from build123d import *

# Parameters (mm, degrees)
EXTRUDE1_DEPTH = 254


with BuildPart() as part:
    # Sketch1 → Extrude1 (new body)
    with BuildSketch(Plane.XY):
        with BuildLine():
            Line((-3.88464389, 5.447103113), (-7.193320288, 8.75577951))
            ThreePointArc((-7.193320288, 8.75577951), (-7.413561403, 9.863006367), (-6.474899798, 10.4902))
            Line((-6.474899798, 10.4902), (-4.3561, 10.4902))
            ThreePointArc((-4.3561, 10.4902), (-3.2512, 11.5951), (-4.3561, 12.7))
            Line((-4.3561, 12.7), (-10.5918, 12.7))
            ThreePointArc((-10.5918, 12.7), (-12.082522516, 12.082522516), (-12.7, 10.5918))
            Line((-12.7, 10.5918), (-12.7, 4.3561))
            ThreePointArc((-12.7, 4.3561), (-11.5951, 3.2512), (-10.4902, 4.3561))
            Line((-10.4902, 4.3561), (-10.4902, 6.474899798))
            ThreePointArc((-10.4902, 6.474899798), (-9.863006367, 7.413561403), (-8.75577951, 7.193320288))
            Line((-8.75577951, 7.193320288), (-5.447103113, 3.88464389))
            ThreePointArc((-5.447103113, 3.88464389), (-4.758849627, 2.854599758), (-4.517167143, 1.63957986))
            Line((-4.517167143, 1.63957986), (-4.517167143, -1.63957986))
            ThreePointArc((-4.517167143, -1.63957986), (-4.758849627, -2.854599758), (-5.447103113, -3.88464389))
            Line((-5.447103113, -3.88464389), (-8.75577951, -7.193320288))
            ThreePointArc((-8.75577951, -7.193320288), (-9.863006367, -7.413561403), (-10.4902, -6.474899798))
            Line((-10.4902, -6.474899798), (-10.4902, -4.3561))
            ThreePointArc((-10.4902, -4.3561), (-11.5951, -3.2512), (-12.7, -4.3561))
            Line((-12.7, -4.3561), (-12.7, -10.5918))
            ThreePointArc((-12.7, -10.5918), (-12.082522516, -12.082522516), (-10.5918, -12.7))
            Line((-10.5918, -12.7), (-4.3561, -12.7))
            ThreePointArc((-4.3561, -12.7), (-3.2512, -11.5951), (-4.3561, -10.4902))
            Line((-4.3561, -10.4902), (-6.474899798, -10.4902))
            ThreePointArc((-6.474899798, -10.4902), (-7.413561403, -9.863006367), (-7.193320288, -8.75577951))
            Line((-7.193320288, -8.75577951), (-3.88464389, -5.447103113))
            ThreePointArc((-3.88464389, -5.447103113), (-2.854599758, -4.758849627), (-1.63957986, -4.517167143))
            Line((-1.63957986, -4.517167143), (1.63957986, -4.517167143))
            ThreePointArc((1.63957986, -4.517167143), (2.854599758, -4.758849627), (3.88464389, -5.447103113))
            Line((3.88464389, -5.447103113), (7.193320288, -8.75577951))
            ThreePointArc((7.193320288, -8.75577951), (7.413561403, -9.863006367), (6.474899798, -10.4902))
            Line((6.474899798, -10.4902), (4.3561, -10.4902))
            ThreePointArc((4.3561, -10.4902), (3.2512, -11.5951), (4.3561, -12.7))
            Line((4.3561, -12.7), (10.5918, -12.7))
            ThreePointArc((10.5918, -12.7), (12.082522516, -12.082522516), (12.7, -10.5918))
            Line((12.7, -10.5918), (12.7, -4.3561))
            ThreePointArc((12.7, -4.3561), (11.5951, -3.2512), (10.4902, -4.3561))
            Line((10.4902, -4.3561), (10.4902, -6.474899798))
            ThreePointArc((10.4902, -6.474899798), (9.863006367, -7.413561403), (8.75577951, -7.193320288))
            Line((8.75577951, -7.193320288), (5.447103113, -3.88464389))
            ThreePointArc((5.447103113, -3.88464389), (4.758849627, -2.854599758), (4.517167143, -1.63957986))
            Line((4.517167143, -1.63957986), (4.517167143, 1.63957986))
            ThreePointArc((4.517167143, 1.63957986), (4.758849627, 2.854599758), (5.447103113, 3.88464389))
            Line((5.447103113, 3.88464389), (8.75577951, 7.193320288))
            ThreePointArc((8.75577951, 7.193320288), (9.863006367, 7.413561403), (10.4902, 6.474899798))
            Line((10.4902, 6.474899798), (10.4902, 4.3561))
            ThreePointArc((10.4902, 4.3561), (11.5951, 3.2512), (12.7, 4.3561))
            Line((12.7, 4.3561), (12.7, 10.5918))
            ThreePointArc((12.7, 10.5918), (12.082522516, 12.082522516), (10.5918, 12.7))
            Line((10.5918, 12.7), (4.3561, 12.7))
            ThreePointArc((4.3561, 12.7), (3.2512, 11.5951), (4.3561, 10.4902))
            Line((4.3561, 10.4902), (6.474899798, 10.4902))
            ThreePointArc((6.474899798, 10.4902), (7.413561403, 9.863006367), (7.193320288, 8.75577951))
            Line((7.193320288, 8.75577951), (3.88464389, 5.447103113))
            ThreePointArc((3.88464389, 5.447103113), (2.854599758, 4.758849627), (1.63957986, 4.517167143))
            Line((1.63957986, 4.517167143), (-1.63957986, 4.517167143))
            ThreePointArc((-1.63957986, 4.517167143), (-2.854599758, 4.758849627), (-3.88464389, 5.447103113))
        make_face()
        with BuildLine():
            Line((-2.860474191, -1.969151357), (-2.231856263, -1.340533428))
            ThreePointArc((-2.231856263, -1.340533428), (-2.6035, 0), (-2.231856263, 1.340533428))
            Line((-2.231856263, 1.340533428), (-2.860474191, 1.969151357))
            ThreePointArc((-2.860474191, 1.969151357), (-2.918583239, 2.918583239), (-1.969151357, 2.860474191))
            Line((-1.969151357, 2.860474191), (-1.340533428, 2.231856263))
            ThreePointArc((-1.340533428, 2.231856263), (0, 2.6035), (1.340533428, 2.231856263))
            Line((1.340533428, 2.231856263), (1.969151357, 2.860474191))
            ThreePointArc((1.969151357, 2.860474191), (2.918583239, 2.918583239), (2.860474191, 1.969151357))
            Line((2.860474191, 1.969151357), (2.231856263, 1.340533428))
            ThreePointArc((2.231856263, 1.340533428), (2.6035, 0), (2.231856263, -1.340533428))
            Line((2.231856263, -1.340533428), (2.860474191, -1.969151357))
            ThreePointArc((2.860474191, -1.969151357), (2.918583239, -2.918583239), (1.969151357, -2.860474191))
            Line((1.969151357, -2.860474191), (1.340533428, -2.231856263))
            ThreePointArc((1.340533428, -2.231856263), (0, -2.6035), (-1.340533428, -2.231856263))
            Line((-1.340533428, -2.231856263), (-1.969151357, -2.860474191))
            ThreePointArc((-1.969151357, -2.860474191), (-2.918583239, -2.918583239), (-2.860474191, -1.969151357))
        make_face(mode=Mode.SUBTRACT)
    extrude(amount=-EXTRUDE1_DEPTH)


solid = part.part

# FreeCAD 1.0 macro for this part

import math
import FreeCAD as App
import Part
import Sketcher
from FreeCAD import Vector
Q = App.Units.Quantity

doc = App.newDocument("Part")
body = doc.addObject("PartDesign::Body", "Body")

sketch1 = doc.addObject("Sketcher::SketchObject", "Sketch")
body.addObject(sketch1)
sketch1.AttachmentSupport = (doc.XY_Plane, [""])
sketch1.MapMode = "FlatFace"
sketch1.addGeometry([
    Part.LineSegment(Vector(-3.9, 5.4, 0), Vector(-7.2, 8.8, 0)),
    Part.ArcOfCircle(Part.Circle(Vector(-6.5, 9.5, 0), Vector(0, 0, 1), 1), math.radians(90), math.radians(225)),
    Part.LineSegment(Vector(-6.5, 10.5, 0), Vector(-4.4, 10.5, 0)),
    Part.ArcOfCircle(Part.Circle(Vector(-4.4, 11.6, 0), Vector(0, 0, 1), 1.1), math.radians(-90), math.radians(90)),
    Part.LineSegment(Vector(-4.4, 12.7, 0), Vector(-10.6, 12.7, 0)),
    Part.ArcOfCircle(Part.Circle(Vector(-10.6, 10.6, 0), Vector(0, 0, 1), 2.1), math.radians(90), math.radians(180)),
    Part.LineSegment(Vector(-12.7, 10.6, 0), Vector(-12.7, 4.4, 0)),
    Part.ArcOfCircle(Part.Circle(Vector(-11.6, 4.4, 0), Vector(0, 0, 1), 1.1), math.radians(180), math.radians(360)),
    Part.LineSegment(Vector(-10.5, 4.4, 0), Vector(-10.5, 6.5, 0)),
    Part.ArcOfCircle(Part.Circle(Vector(-9.5, 6.5, 0), Vector(0, 0, 1), 1), math.radians(45), math.radians(180)),
    Part.LineSegment(Vector(-8.8, 7.2, 0), Vector(-5.4, 3.9, 0)),
    Part.ArcOfCircle(Part.Circle(Vector(-7.7, 1.6, 0), Vector(0, 0, 1), 3.2), math.radians(0), math.radians(45)),
    Part.LineSegment(Vector(-4.5, 1.6, 0), Vector(-4.5, -1.6, 0)),
    Part.ArcOfCircle(Part.Circle(Vector(-7.7, -1.6, 0), Vector(0, 0, 1), 3.2), math.radians(-45), math.radians(0)),
    Part.LineSegment(Vector(-5.4, -3.9, 0), Vector(-8.8, -7.2, 0)),
    Part.ArcOfCircle(Part.Circle(Vector(-9.5, -6.5, 0), Vector(0, 0, 1), 1), math.radians(180), math.radians(315)),
    Part.LineSegment(Vector(-10.5, -6.5, 0), Vector(-10.5, -4.4, 0)),
    Part.ArcOfCircle(Part.Circle(Vector(-11.6, -4.4, 0), Vector(0, 0, 1), 1.1), math.radians(0), math.radians(180)),
    Part.LineSegment(Vector(-12.7, -4.4, 0), Vector(-12.7, -10.6, 0)),
    Part.ArcOfCircle(Part.Circle(Vector(-10.6, -10.6, 0), Vector(0, 0, 1), 2.1), math.radians(180), math.radians(270)),
    Part.LineSegment(Vector(-10.6, -12.7, 0), Vector(-4.4, -12.7, 0)),
    Part.ArcOfCircle(Part.Circle(Vector(-4.4, -11.6, 0), Vector(0, 0, 1), 1.1), math.radians(-90), math.radians(90)),
    Part.LineSegment(Vector(-4.4, -10.5, 0), Vector(-6.5, -10.5, 0)),
    Part.ArcOfCircle(Part.Circle(Vector(-6.5, -9.5, 0), Vector(0, 0, 1), 1), math.radians(135), math.radians(270)),
    Part.LineSegment(Vector(-7.2, -8.8, 0), Vector(-3.9, -5.4, 0)),
    Part.ArcOfCircle(Part.Circle(Vector(-1.6, -7.7, 0), Vector(0, 0, 1), 3.2), math.radians(90), math.radians(135)),
    Part.LineSegment(Vector(-1.6, -4.5, 0), Vector(1.6, -4.5, 0)),
    Part.ArcOfCircle(Part.Circle(Vector(1.6, -7.7, 0), Vector(0, 0, 1), 3.2), math.radians(45), math.radians(90)),
    Part.LineSegment(Vector(3.9, -5.4, 0), Vector(7.2, -8.8, 0)),
    Part.ArcOfCircle(Part.Circle(Vector(6.5, -9.5, 0), Vector(0, 0, 1), 1), math.radians(-90), math.radians(45)),
    Part.LineSegment(Vector(6.5, -10.5, 0), Vector(4.4, -10.5, 0)),
    Part.ArcOfCircle(Part.Circle(Vector(4.4, -11.6, 0), Vector(0, 0, 1), 1.1), math.radians(90), math.radians(270)),
    Part.LineSegment(Vector(4.4, -12.7, 0), Vector(10.6, -12.7, 0)),
    Part.ArcOfCircle(Part.Circle(Vector(10.6, -10.6, 0), Vector(0, 0, 1), 2.1), math.radians(-90), math.radians(0)),
    Part.LineSegment(Vector(12.7, -10.6, 0), Vector(12.7, -4.4, 0)),
    Part.ArcOfCircle(Part.Circle(Vector(11.6, -4.4, 0), Vector(0, 0, 1), 1.1), math.radians(0), math.radians(180)),
    Part.LineSegment(Vector(10.5, -4.4, 0), Vector(10.5, -6.5, 0)),
    Part.ArcOfCircle(Part.Circle(Vector(9.5, -6.5, 0), Vector(0, 0, 1), 1), math.radians(-135), math.radians(0)),
    Part.LineSegment(Vector(8.8, -7.2, 0), Vector(5.4, -3.9, 0)),
    Part.ArcOfCircle(Part.Circle(Vector(7.7, -1.6, 0), Vector(0, 0, 1), 3.2), math.radians(180), math.radians(225)),
    Part.LineSegment(Vector(4.5, -1.6, 0), Vector(4.5, 1.6, 0)),
    Part.ArcOfCircle(Part.Circle(Vector(7.7, 1.6, 0), Vector(0, 0, 1), 3.2), math.radians(135), math.radians(180)),
    Part.LineSegment(Vector(5.4, 3.9, 0), Vector(8.8, 7.2, 0)),
    Part.ArcOfCircle(Part.Circle(Vector(9.5, 6.5, 0), Vector(0, 0, 1), 1), math.radians(0), math.radians(135)),
    Part.LineSegment(Vector(10.5, 6.5, 0), Vector(10.5, 4.4, 0)),
    Part.ArcOfCircle(Part.Circle(Vector(11.6, 4.4, 0), Vector(0, 0, 1), 1.1), math.radians(180), math.radians(360)),
    Part.LineSegment(Vector(12.7, 4.4, 0), Vector(12.7, 10.6, 0)),
    Part.ArcOfCircle(Part.Circle(Vector(10.6, 10.6, 0), Vector(0, 0, 1), 2.1), math.radians(0), math.radians(90)),
    Part.LineSegment(Vector(10.6, 12.7, 0), Vector(4.4, 12.7, 0)),
    Part.ArcOfCircle(Part.Circle(Vector(4.4, 11.6, 0), Vector(0, 0, 1), 1.1), math.radians(90), math.radians(270)),
    Part.LineSegment(Vector(4.4, 10.5, 0), Vector(6.5, 10.5, 0)),
    Part.ArcOfCircle(Part.Circle(Vector(6.5, 9.5, 0), Vector(0, 0, 1), 1), math.radians(-45), math.radians(90)),
    Part.LineSegment(Vector(7.2, 8.8, 0), Vector(3.9, 5.4, 0)),
    Part.ArcOfCircle(Part.Circle(Vector(1.6, 7.7, 0), Vector(0, 0, 1), 3.2), math.radians(-90), math.radians(-45)),
    Part.LineSegment(Vector(1.6, 4.5, 0), Vector(-1.6, 4.5, 0)),
    Part.ArcOfCircle(Part.Circle(Vector(-1.6, 7.7, 0), Vector(0, 0, 1), 3.2), math.radians(-135), math.radians(-90)),
    Part.ArcOfCircle(Part.Circle(Vector(-2.5, -2.5, 0), Vector(0, 0, 1), 0.6), math.radians(128), math.radians(322)),
    Part.LineSegment(Vector(-2.9, -2, 0), Vector(-2.2, -1.3, 0)),
    Part.ArcOfCircle(Part.Circle(Vector(0, 0, 0), Vector(0, 0, 1), 2.6), math.radians(149), math.radians(211)),
    Part.LineSegment(Vector(-2.2, 1.3, 0), Vector(-2.9, 2, 0)),
    Part.ArcOfCircle(Part.Circle(Vector(-2.5, 2.5, 0), Vector(0, 0, 1), 0.6), math.radians(38), math.radians(232)),
    Part.LineSegment(Vector(-2, 2.9, 0), Vector(-1.3, 2.2, 0)),
    Part.ArcOfCircle(Part.Circle(Vector(0, 0, 0), Vector(0, 0, 1), 2.6), math.radians(59), math.radians(121)),
    Part.LineSegment(Vector(1.3, 2.2, 0), Vector(2, 2.9, 0)),
    Part.ArcOfCircle(Part.Circle(Vector(2.5, 2.5, 0), Vector(0, 0, 1), 0.6), math.radians(-52), math.radians(142)),
    Part.LineSegment(Vector(2.9, 2, 0), Vector(2.2, 1.3, 0)),
    Part.ArcOfCircle(Part.Circle(Vector(0, 0, 0), Vector(0, 0, 1), 2.6), math.radians(-31), math.radians(31)),
    Part.LineSegment(Vector(2.2, -1.3, 0), Vector(2.9, -2, 0)),
    Part.ArcOfCircle(Part.Circle(Vector(2.5, -2.5, 0), Vector(0, 0, 1), 0.6), math.radians(-142), math.radians(52)),
    Part.LineSegment(Vector(2, -2.9, 0), Vector(1.3, -2.2, 0)),
    Part.ArcOfCircle(Part.Circle(Vector(0, 0, 0), Vector(0, 0, 1), 2.6), math.radians(-121), math.radians(-59)),
    Part.LineSegment(Vector(-1.3, -2.2, 0), Vector(-2, -2.9, 0)),
], False)
sketch1.addConstraint([
    Sketcher.Constraint("Tangent", 0, 2, 1, 2),
    Sketcher.Constraint("Tangent", 1, 1, 2, 1),
    Sketcher.Constraint("Tangent", 2, 2, 3, 1),
    Sketcher.Constraint("Tangent", 3, 2, 4, 1),
    Sketcher.Constraint("Tangent", 4, 2, 5, 1),
    Sketcher.Constraint("Tangent", 5, 2, 6, 1),
    Sketcher.Constraint("Tangent", 6, 2, 7, 1),
    Sketcher.Constraint("Tangent", 7, 2, 8, 1),
    Sketcher.Constraint("Tangent", 8, 2, 9, 2),
    Sketcher.Constraint("Tangent", 9, 1, 10, 1),
    Sketcher.Constraint("Tangent", 10, 2, 11, 2),
    Sketcher.Constraint("Tangent", 11, 1, 12, 1),
    Sketcher.Constraint("Tangent", 12, 2, 13, 2),
    Sketcher.Constraint("Tangent", 13, 1, 14, 1),
    Sketcher.Constraint("Tangent", 14, 2, 15, 2),
    Sketcher.Constraint("Tangent", 15, 1, 16, 1),
    Sketcher.Constraint("Tangent", 16, 2, 17, 1),
    Sketcher.Constraint("Tangent", 17, 2, 18, 1),
    Sketcher.Constraint("Tangent", 18, 2, 19, 1),
    Sketcher.Constraint("Tangent", 19, 2, 20, 1),
    Sketcher.Constraint("Tangent", 20, 2, 21, 1),
    Sketcher.Constraint("Tangent", 21, 2, 22, 1),
    Sketcher.Constraint("Tangent", 22, 2, 23, 2),
    Sketcher.Constraint("Tangent", 23, 1, 24, 1),
    Sketcher.Constraint("Tangent", 24, 2, 25, 2),
    Sketcher.Constraint("Tangent", 25, 1, 26, 1),
    Sketcher.Constraint("Tangent", 26, 2, 27, 2),
    Sketcher.Constraint("Tangent", 27, 1, 28, 1),
    Sketcher.Constraint("Tangent", 28, 2, 29, 2),
    Sketcher.Constraint("Tangent", 29, 1, 30, 1),
    Sketcher.Constraint("Tangent", 30, 2, 31, 1),
    Sketcher.Constraint("Tangent", 31, 2, 32, 1),
    Sketcher.Constraint("Tangent", 32, 2, 33, 1),
    Sketcher.Constraint("Tangent", 33, 2, 34, 1),
    Sketcher.Constraint("Tangent", 34, 2, 35, 1),
    Sketcher.Constraint("Tangent", 35, 2, 36, 1),
    Sketcher.Constraint("Tangent", 36, 2, 37, 2),
    Sketcher.Constraint("Tangent", 37, 1, 38, 1),
    Sketcher.Constraint("Tangent", 38, 2, 39, 2),
    Sketcher.Constraint("Tangent", 39, 1, 40, 1),
    Sketcher.Constraint("Tangent", 40, 2, 41, 2),
    Sketcher.Constraint("Tangent", 41, 1, 42, 1),
    Sketcher.Constraint("Tangent", 42, 2, 43, 2),
    Sketcher.Constraint("Tangent", 43, 1, 44, 1),
    Sketcher.Constraint("Tangent", 44, 2, 45, 1),
    Sketcher.Constraint("Tangent", 45, 2, 46, 1),
    Sketcher.Constraint("Tangent", 46, 2, 47, 1),
    Sketcher.Constraint("Tangent", 47, 2, 48, 1),
    Sketcher.Constraint("Tangent", 48, 2, 49, 1),
    Sketcher.Constraint("Tangent", 49, 2, 50, 1),
    Sketcher.Constraint("Tangent", 50, 2, 51, 2),
    Sketcher.Constraint("Tangent", 51, 1, 52, 1),
    Sketcher.Constraint("Tangent", 52, 2, 53, 2),
    Sketcher.Constraint("Tangent", 53, 1, 54, 1),
    Sketcher.Constraint("Tangent", 54, 2, 55, 2),
    Sketcher.Constraint("Tangent", 55, 1, 0, 1),
    Sketcher.Constraint("Coincident", 56, 1, 57, 1),
    Sketcher.Constraint("Coincident", 57, 2, 58, 2),
    Sketcher.Constraint("Coincident", 58, 1, 59, 1),
    Sketcher.Constraint("Coincident", 59, 2, 60, 2),
    Sketcher.Constraint("Coincident", 60, 1, 61, 1),
    Sketcher.Constraint("Coincident", 61, 2, 62, 2),
    Sketcher.Constraint("Coincident", 62, 1, 63, 1),
    Sketcher.Constraint("Coincident", 63, 2, 64, 2),
    Sketcher.Constraint("Coincident", 64, 1, 65, 1),
    Sketcher.Constraint("Coincident", 65, 2, 66, 2),
    Sketcher.Constraint("Coincident", 66, 1, 67, 1),
    Sketcher.Constraint("Coincident", 67, 2, 68, 2),
    Sketcher.Constraint("Coincident", 68, 1, 69, 1),
    Sketcher.Constraint("Coincident", 69, 2, 70, 2),
    Sketcher.Constraint("Coincident", 70, 1, 71, 1),
    Sketcher.Constraint("Coincident", 71, 2, 56, 2),
    Sketcher.Constraint("Horizontal", 2),
    Sketcher.Constraint("Horizontal", 4),
    Sketcher.Constraint("Vertical", 6),
    Sketcher.Constraint("Vertical", 8),
    Sketcher.Constraint("Vertical", 12),
    Sketcher.Constraint("Vertical", 16),
    Sketcher.Constraint("Vertical", 18),
    Sketcher.Constraint("Horizontal", 20),
    Sketcher.Constraint("Horizontal", 22),
    Sketcher.Constraint("Horizontal", 26),
    Sketcher.Constraint("Horizontal", 30),
    Sketcher.Constraint("Horizontal", 32),
    Sketcher.Constraint("Vertical", 34),
    Sketcher.Constraint("Vertical", 36),
    Sketcher.Constraint("Vertical", 40),
    Sketcher.Constraint("Vertical", 44),
    Sketcher.Constraint("Vertical", 46),
    Sketcher.Constraint("Horizontal", 48),
    Sketcher.Constraint("Horizontal", 50),
    Sketcher.Constraint("Horizontal", 54),
    Sketcher.Constraint("Coincident", 58, 3, -1, 1),
    Sketcher.Constraint("Coincident", 62, 3, -1, 1),
    Sketcher.Constraint("Coincident", 66, 3, -1, 1),
    Sketcher.Constraint("Coincident", 70, 3, -1, 1),
    Sketcher.Constraint("Equal", 3, 7),
    Sketcher.Constraint("Equal", 1, 9),
    Sketcher.Constraint("Equal", 11, 13),
    Sketcher.Constraint("Equal", 9, 15),
    Sketcher.Constraint("Equal", 7, 17),
    Sketcher.Constraint("Equal", 5, 19),
    Sketcher.Constraint("Equal", 17, 21),
    Sketcher.Constraint("Equal", 15, 23),
    Sketcher.Constraint("Equal", 13, 25),
    Sketcher.Constraint("Equal", 25, 27),
    Sketcher.Constraint("Equal", 23, 29),
    Sketcher.Constraint("Equal", 21, 31),
    Sketcher.Constraint("Equal", 19, 33),
    Sketcher.Constraint("Equal", 31, 35),
    Sketcher.Constraint("Equal", 29, 37),
    Sketcher.Constraint("Equal", 27, 39),
    Sketcher.Constraint("Equal", 39, 41),
    Sketcher.Constraint("Equal", 37, 43),
    Sketcher.Constraint("Equal", 35, 45),
    Sketcher.Constraint("Equal", 33, 47),
    Sketcher.Constraint("Equal", 45, 49),
    Sketcher.Constraint("Equal", 43, 51),
    Sketcher.Constraint("Equal", 41, 53),
    Sketcher.Constraint("Equal", 53, 55),
    Sketcher.Constraint("Equal", 56, 60),
    Sketcher.Constraint("Equal", 58, 62),
    Sketcher.Constraint("Equal", 60, 64),
    Sketcher.Constraint("Equal", 62, 66),
    Sketcher.Constraint("Equal", 64, 68),
    Sketcher.Constraint("Equal", 66, 70),
    Sketcher.Constraint("Symmetric", 1, 3, 29, 3, -1, 1),
    Sketcher.Constraint("Symmetric", 7, 3, 35, 3, -1, 1),
    Sketcher.Constraint("Symmetric", 11, 3, 39, 3, -1, 1),
    Sketcher.Constraint("Symmetric", 15, 3, 43, 3, -1, 1),
    Sketcher.Constraint("Symmetric", 21, 3, 49, 3, -1, 1),
    Sketcher.Constraint("Symmetric", 25, 3, 53, 3, -1, 1),
    Sketcher.Constraint("Symmetric", 56, 3, 64, 3, -1, 1),
    Sketcher.Constraint("Symmetric", 60, 3, 68, 3, -1, 1),
    Sketcher.Constraint("Symmetric", 23, 3, 29, 3, -2),
    Sketcher.Constraint("Symmetric", 17, 3, 35, 3, -2),
    Sketcher.Constraint("Symmetric", 60, 3, 64, 3, -2),
    Sketcher.Constraint("Symmetric", 14, 2, 37, 1, -2),
    Sketcher.Constraint("Symmetric", 10, 2, 41, 1, -2),
    Sketcher.Constraint("Symmetric", 0, 2, 51, 1, -2),
    Sketcher.Constraint("Parallel", 0, 10),
    Sketcher.Constraint("Perpendicular", 10, 14),
    Sketcher.Constraint("Perpendicular", 24, 28),
    Sketcher.Constraint("Parallel", 52, 57),
    Sketcher.Constraint("Perpendicular", 57, 59),
    Sketcher.Constraint("Parallel", 59, 61),
    Sketcher.Constraint("Perpendicular", 61, 63),
    Sketcher.Constraint("Parallel", 63, 65),
    Sketcher.Constraint("Perpendicular", 65, 67),
    Sketcher.Constraint("Parallel", 67, 69),
    Sketcher.Constraint("Perpendicular", 69, 71),
    Sketcher.Constraint("Horizontal", 7, 3, 45, 3),
    Sketcher.Constraint("Horizontal", 61, 2, 62, 1),
    Sketcher.Constraint("Horizontal", 59, 2, 64, 1),
    Sketcher.Constraint("Horizontal", 57, 2, 66, 1),
    Sketcher.Constraint("Horizontal", 69, 2, 70, 1),
    Sketcher.Constraint("Vertical", 3, 3, 21, 3),
    Sketcher.Constraint("Vertical", 31, 3, 49, 3),
    Sketcher.Constraint("Vertical", 57, 2, 58, 1),
    Sketcher.Constraint("Vertical", 63, 2, 68, 1),
    Sketcher.Constraint("Equal", 48, 6),
    Sketcher.Constraint("Equal", 50, 8),
    Sketcher.Constraint("Equal", 54, 12),
    Sketcher.Constraint("Equal", 0, 10),
    Sketcher.Constraint("Equal", 59, 61),
    Sketcher.Constraint("Radius", 1, Q("0.04 in")),
    Sketcher.Constraint("Radius", 5, Q("0.083 in")),
    Sketcher.Constraint("Radius", 11, Q("0.125 in")),
    Sketcher.Constraint("Radius", 56, Q("0.025 in")),
    Sketcher.Constraint("DistanceY", -1, 1, 3, 2, Q("0.5 in")),
    Sketcher.Constraint("Radius", 3, Q("0.0435 in")),
    Sketcher.Constraint("Radius", 58, Q("0.1025 in")),
    Sketcher.Constraint("Distance", 57, Q("0.035 in")),
    Sketcher.Constraint("DistanceX", 4, 2, 4, 1, Q("0.2455 in")),
    Sketcher.Constraint("DistanceX", 2, 1, 2, 2, Q("2.1188 mm")),
    Sketcher.Constraint("DistanceX", 26, 1, 26, 2, Q("3.27916 mm")),
    Sketcher.Constraint("DistanceX", 56, 3, -1, 1, Q("2.46957 mm")),
    Sketcher.Constraint("DistanceY", 56, 3, -1, 1, Q("2.46957 mm")),
])
pad1 = doc.addObject("PartDesign::Pad", "Pad")
body.addObject(pad1)
pad1.Profile = sketch1
pad1.Length = Q("10 in")
pad1.Reversed = True

doc.recompute()
